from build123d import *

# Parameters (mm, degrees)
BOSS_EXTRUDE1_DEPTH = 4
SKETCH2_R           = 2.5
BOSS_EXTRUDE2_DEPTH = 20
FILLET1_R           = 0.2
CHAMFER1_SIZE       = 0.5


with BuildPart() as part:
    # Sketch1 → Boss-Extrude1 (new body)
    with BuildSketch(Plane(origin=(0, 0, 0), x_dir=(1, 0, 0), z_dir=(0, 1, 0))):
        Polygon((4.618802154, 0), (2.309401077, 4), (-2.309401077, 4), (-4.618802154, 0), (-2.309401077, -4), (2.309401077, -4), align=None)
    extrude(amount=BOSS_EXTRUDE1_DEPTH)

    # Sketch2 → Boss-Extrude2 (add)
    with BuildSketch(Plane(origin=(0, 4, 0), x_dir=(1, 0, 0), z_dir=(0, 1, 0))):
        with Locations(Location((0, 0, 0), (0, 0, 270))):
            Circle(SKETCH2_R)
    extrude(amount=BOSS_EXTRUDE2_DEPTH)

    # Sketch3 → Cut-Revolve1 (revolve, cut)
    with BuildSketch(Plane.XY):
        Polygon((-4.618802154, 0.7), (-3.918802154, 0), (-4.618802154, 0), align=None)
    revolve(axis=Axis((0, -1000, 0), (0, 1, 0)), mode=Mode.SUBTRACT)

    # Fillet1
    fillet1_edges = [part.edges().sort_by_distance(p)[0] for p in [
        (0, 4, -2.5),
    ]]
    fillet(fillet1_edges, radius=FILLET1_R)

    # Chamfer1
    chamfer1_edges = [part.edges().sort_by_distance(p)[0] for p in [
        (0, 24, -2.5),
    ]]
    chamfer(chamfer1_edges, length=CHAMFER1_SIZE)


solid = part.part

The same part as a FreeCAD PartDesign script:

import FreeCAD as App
import Part
import Sketcher
from FreeCAD import Vector
Q = App.Units.Quantity


def edges_at(feature, points):
    """Names of the edges that pass closest to the given points."""
    edges = feature.Shape.Edges
    near = lambda p: min(range(len(edges)), key=lambda i: edges[i].distToShape(Part.Vertex(*p))[0])
    return sorted({f"Edge{near(p) + 1}" for p in points})


def add_polygon(sketch, points):
    """Adds a closed chain of lines whose ends are joined by coincident constraints."""
    first, n = sketch.GeometryCount, len(points)
    for a, b in zip(points, points[1:] + points[:1]):
        sketch.addGeometry(Part.LineSegment(App.Vector(*a, 0), App.Vector(*b, 0)), False)
    for i in range(n):
        sketch.addConstraint(Sketcher.Constraint("Coincident", first + i, 2, first + (i + 1) % n, 1))

doc = App.newDocument("Part")
body = doc.addObject("PartDesign::Body", "Body")

# Sketch on XZ plane
sketch1 = body.newObject("Sketcher::SketchObject", "Sketch")
sketch1.AttachmentSupport = (doc.getObject("XZ_Plane"), [""])
sketch1.MapMode = "FlatFace"
add_polygon(sketch1, [(4.618802, 0), (2.309401, -4), (-2.309401, -4), (-4.618802, 0), (-2.309401, 4), (2.309401, 4)])  # lines 0-5
sketch1.addConstraint(Sketcher.Constraint("Horizontal", 1))
sketch1.addConstraint(Sketcher.Constraint("Horizontal", 4))
sketch1.addConstraint(Sketcher.Constraint("Symmetric", 0, 2, 3, 2, -1, 1))
sketch1.addConstraint(Sketcher.Constraint("Symmetric", 2, 2, 5, 2, -1, 1))
sketch1.addConstraint(Sketcher.Constraint("PointOnObject", 2, 2, -1))
sketch1.addConstraint(Sketcher.Constraint("Parallel", 2, 5))
sketch1.addConstraint(Sketcher.Constraint("Vertical", 1, 2, 3, 2))
sketch1.addConstraint(Sketcher.Constraint("Angle", 0, Q("-120 deg")))
sketch1.addConstraint(Sketcher.Constraint("DistanceY", 0, 2, -1, 1, Q("4 mm")))
sketch1.addConstraint(Sketcher.Constraint("DistanceX", -1, 1, 0, 2, Q("2.309401 mm")))
pad1 = body.newObject("PartDesign::Pad", "Pad")
pad1.Profile = sketch1
pad1.Length = 4
pad1.Reversed = True

# Sketch on XZ plane
sketch2 = body.newObject("Sketcher::SketchObject", "Sketch001")
sketch2.AttachmentSupport = (doc.getObject("XZ_Plane"), [""])
sketch2.MapMode = "FlatFace"
sketch2.AttachmentOffset = App.Placement(Vector(0, 0, -4), App.Rotation())
sketch2.addGeometry(Part.Circle(Vector(0, 0, 0), Vector(0, 0, 1), 2.5), False)
sketch2.addConstraint(Sketcher.Constraint("Coincident", 0, 3, -1, 1))
sketch2.addConstraint(Sketcher.Constraint("Diameter", 0, Q("5 mm")))
pad2 = body.newObject("PartDesign::Pad", "Pad001")
pad2.Profile = sketch2
pad2.Length = 20
pad2.Reversed = True

# Sketch on XY plane
sketch3 = body.newObject("Sketcher::SketchObject", "Sketch002")
sketch3.AttachmentSupport = (doc.getObject("XY_Plane"), [""])
sketch3.MapMode = "FlatFace"
add_polygon(sketch3, [(-3.918802, 0), (-4.618802, 0.7), (-4.618802, 0)])  # lines 0-2
sketch3.addConstraint(Sketcher.Constraint("Vertical", 1))
sketch3.addConstraint(Sketcher.Constraint("Horizontal", 2))
sketch3.addConstraint(Sketcher.Constraint("PointOnObject", 1, 2, -1))
sketch3.addConstraint(Sketcher.Constraint("Equal", 2, 1))
sketch3.addConstraint(Sketcher.Constraint("DistanceX", 2, 1, 2, 2, Q("0.7 mm")))
sketch3.addConstraint(Sketcher.Constraint("DistanceX", 0, 2, -1, 1, Q("4.618802 mm")))
groove = body.newObject("PartDesign::Groove", "Groove")
groove.Profile = sketch3
groove.ReferenceAxis = (sketch3, ["V_Axis"])
groove.Angle = 360
doc.recompute()

fillet = body.newObject("PartDesign::Fillet", "Fillet")
fillet.Base = (groove, edges_at(groove, [(0, 4, -2.5)]))
fillet.Radius = 0.2
doc.recompute()

chamfer = body.newObject("PartDesign::Chamfer", "Chamfer")
chamfer.Base = (fillet, edges_at(fillet, [(0, 24, -2.5)]))
chamfer.Size = 0.5

doc.recompute()
